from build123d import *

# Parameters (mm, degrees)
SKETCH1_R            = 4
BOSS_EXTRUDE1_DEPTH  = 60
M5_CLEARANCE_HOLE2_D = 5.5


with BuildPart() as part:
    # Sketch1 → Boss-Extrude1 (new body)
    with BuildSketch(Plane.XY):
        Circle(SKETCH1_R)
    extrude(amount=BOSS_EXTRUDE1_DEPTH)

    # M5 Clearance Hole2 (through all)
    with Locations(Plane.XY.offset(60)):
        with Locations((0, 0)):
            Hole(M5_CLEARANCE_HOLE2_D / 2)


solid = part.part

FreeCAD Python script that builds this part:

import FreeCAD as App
import Part
import Sketcher

V = App.Vector

doc = App.newDocument("Part")
body = doc.addObject("PartDesign::Body", "Body")

sketch1 = body.newObject("Sketcher::SketchObject", "Sketch")
sketch1.AttachmentSupport = (doc.getObject("XY_Plane"), [""])
sketch1.MapMode = "FlatFace"
sketch1.addGeometry(Part.Circle(V(0, 0, 0), V(0, 0, 1), 4), False)
sketch1.addConstraint(Sketcher.Constraint("Coincident", 0, 3, -1, 1))
sketch1.addConstraint(Sketcher.Constraint("Diameter", 0, 8.0))
pad1 = body.newObject("PartDesign::Pad", "Pad")
pad1.Profile = sketch1
pad1.Length = 60

sketch2 = body.newObject("Sketcher::SketchObject", "Sketch001")
sketch2.AttachmentSupport = (doc.getObject("XY_Plane"), [""])
sketch2.MapMode = "FlatFace"
sketch2.AttachmentOffset = App.Placement(V(0, 0, 60), App.Rotation())
sketch2.addGeometry(Part.Circle(V(0, 0, 0), V(0, 0, 1), 2.8), False)
sketch2.addConstraint(Sketcher.Constraint("Coincident", 0, 3, -1, 1))
sketch2.addConstraint(Sketcher.Constraint("Diameter", 0, 5.5))
doc.recompute()
hole = body.newObject("PartDesign::Hole", "Hole")
hole.Profile = sketch2
hole.ThreadType = "None"
hole.Diameter = 5.5
hole.DepthType = "ThroughAll"

doc.recompute()
